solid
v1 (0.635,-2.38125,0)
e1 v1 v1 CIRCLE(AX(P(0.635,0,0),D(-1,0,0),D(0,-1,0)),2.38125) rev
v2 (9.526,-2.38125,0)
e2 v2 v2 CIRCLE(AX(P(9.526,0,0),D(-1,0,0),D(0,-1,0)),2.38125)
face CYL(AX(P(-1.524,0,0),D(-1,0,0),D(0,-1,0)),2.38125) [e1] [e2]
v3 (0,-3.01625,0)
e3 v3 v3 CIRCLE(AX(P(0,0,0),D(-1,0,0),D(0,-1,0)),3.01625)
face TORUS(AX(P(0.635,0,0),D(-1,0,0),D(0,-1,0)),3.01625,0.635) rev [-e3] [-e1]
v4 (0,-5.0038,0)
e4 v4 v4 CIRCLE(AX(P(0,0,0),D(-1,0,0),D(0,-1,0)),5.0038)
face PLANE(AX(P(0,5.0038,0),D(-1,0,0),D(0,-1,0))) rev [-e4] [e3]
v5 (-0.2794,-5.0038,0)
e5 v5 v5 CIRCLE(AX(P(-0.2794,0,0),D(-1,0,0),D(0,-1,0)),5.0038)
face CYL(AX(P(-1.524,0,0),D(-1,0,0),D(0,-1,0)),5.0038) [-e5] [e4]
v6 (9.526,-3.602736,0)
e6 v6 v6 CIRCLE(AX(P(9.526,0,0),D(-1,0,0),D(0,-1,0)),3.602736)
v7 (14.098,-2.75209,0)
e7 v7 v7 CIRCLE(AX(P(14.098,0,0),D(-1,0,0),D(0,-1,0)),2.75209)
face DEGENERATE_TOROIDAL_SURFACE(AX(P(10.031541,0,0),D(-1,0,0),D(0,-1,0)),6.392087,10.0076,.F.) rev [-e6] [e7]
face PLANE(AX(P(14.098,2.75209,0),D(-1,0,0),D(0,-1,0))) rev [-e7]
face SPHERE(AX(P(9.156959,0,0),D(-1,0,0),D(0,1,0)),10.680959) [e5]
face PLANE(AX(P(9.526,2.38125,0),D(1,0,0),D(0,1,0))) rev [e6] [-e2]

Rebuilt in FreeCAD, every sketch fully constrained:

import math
import FreeCAD as App
import Part
import Sketcher

V = App.Vector
Q = App.Units.Quantity


def edges_at(feature, points):
    """Names of the edges that pass closest to the given points."""
    edges = feature.Shape.Edges
    near = lambda p: min(range(len(edges)), key=lambda i: edges[i].distToShape(Part.Vertex(*p))[0])
    return sorted({f"Edge{near(p) + 1}" for p in points})

doc = App.newDocument("Part")
body = doc.addObject("PartDesign::Body", "Body")

sketch1 = doc.addObject("Sketcher::SketchObject", "Sketch")
body.addObject(sketch1)
sketch1.AttachmentSupport = (doc.XY_Plane, [""])
sketch1.MapMode = "FlatFace"
sketch1.addGeometry(Part.LineSegment(V(0, 5, 0), V(-0.28, 5, 0)), False)
sketch1.addGeometry(Part.ArcOfCircle(Part.Circle(V(9.16, 0, 0), V(0, 0, 1), 10.68), math.radians(152), math.radians(180)), False)
sketch1.addGeometry(Part.LineSegment(V(-1.52, 0, 0), V(14.1, 0, 0)), False)
sketch1.addGeometry(Part.LineSegment(V(14.1, 0, 0), V(14.1, 2.75, 0)), False)
sketch1.addGeometry(Part.ArcOfCircle(Part.Circle(V(10.03, -6.39, 0), V(0, 0, 1), 10.01), math.radians(66), math.radians(93)), False)
sketch1.addGeometry(Part.LineSegment(V(9.53, 3.6, 0), V(9.53, 2.38, 0)), False)
sketch1.addGeometry(Part.LineSegment(V(9.53, 2.38, 0), V(0, 2.38, 0)), False)
sketch1.addGeometry(Part.LineSegment(V(0, 2.38, 0), V(0, 5, 0)), False)
sketch1.addConstraint(Sketcher.Constraint("Coincident", 0, 2, 1, 1))
sketch1.addConstraint(Sketcher.Constraint("Coincident", 1, 2, 2, 1))
sketch1.addConstraint(Sketcher.Constraint("Coincident", 2, 2, 3, 1))
sketch1.addConstraint(Sketcher.Constraint("Coincident", 3, 2, 4, 1))
sketch1.addConstraint(Sketcher.Constraint("Coincident", 4, 2, 5, 1))
sketch1.addConstraint(Sketcher.Constraint("Coincident", 5, 2, 6, 1))
sketch1.addConstraint(Sketcher.Constraint("Coincident", 6, 2, 7, 1))
sketch1.addConstraint(Sketcher.Constraint("Coincident", 7, 2, 0, 1))
sketch1.addConstraint(Sketcher.Constraint("Horizontal", 0))
sketch1.addConstraint(Sketcher.Constraint("Horizontal", 2))
sketch1.addConstraint(Sketcher.Constraint("Vertical", 3))
sketch1.addConstraint(Sketcher.Constraint("Vertical", 5))
sketch1.addConstraint(Sketcher.Constraint("Horizontal", 6))
sketch1.addConstraint(Sketcher.Constraint("Vertical", 7))
sketch1.addConstraint(Sketcher.Constraint("PointOnObject", 1, 3, -1))
sketch1.addConstraint(Sketcher.Constraint("PointOnObject", 1, 2, -1))
sketch1.addConstraint(Sketcher.Constraint("PointOnObject", 6, 2, -2))
sketch1.addConstraint(Sketcher.Constraint("Radius", 4, Q("0.394 in")))
sketch1.addConstraint(Sketcher.Constraint("DistanceX", 0, 2, 0, 1, Q("0.011 in")))
sketch1.addConstraint(Sketcher.Constraint("DistanceX", 1, 2, -1, 1, Q("0.06 in")))
sketch1.addConstraint(Sketcher.Constraint("DistanceX", 4, 2, 3, 2, Q("0.18 in")))
sketch1.addConstraint(Sketcher.Constraint("DistanceY", -1, 1, 0, 2, Q("0.197 in")))
sketch1.addConstraint(Sketcher.Constraint("DistanceY", -1, 1, 5, 2, Q("0.09375 in")))
sketch1.addConstraint(Sketcher.Constraint("DistanceX", 2, 1, 2, 2, Q("15.622 mm")))
sketch1.addConstraint(Sketcher.Constraint("DistanceY", 5, 2, 3, 2, Q("0.0146 in")))
sketch1.addConstraint(Sketcher.Constraint("DistanceY", 5, 2, 5, 1, Q("1.221486 mm")))
revolution = doc.addObject("PartDesign::Revolution", "Revolution")
body.addObject(revolution)
revolution.Profile = sketch1
revolution.ReferenceAxis = (sketch1, ["H_Axis"])
revolution.Angle = 360
doc.recompute()

fillet = doc.addObject("PartDesign::Fillet", "Fillet")
body.addObject(fillet)
fillet.Base = (revolution, edges_at(revolution, [(0, 2.381, 0)]))
fillet.Radius = Q("0.025 in")

doc.recompute()
